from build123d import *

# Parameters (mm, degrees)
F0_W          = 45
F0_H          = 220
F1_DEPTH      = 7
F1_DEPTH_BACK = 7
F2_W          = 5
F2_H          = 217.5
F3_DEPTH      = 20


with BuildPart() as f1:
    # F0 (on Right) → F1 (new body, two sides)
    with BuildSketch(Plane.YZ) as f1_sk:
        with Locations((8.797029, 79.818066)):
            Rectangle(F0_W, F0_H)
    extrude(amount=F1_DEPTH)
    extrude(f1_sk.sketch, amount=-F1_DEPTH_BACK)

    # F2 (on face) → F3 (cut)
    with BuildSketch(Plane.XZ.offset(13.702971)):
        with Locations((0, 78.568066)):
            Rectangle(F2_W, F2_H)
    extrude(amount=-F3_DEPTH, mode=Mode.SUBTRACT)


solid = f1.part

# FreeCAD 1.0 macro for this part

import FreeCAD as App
import Part
import Sketcher
Q = App.Units.Quantity

doc = App.newDocument("Part")
body = doc.addObject("PartDesign::Body", "Body")

sketch1 = body.newObject("Sketcher::SketchObject", "Sketch")
sketch1.AttachmentSupport = (doc.getObject("YZ_Plane"), [""])
sketch1.MapMode = "FlatFace"
sketch1.addGeometry(Part.LineSegment(App.Vector(-14, 190, 0), App.Vector(-14, -30, 0)), False)
sketch1.addGeometry(Part.LineSegment(App.Vector(-14, -30, 0), App.Vector(31, -30, 0)), False)
sketch1.addGeometry(Part.LineSegment(App.Vector(31, -30, 0), App.Vector(31, 190, 0)), False)
sketch1.addGeometry(Part.LineSegment(App.Vector(31, 190, 0), App.Vector(-14, 190, 0)), False)
sketch1.addConstraint(Sketcher.Constraint("Coincident", 0, 2, 1, 1))
sketch1.addConstraint(Sketcher.Constraint("Coincident", 1, 2, 2, 1))
sketch1.addConstraint(Sketcher.Constraint("Coincident", 2, 2, 3, 1))
sketch1.addConstraint(Sketcher.Constraint("Coincident", 3, 2, 0, 1))
sketch1.addConstraint(Sketcher.Constraint("Vertical", 0))
sketch1.addConstraint(Sketcher.Constraint("Horizontal", 1))
sketch1.addConstraint(Sketcher.Constraint("Vertical", 2))
sketch1.addConstraint(Sketcher.Constraint("Horizontal", 3))
sketch1.addConstraint(Sketcher.Constraint("DistanceX", 1, 1, 1, 2, Q("45 mm")))
sketch1.addConstraint(Sketcher.Constraint("DistanceY", 0, 2, 0, 1, Q("220 mm")))
sketch1.addConstraint(Sketcher.Constraint("DistanceX", 0, 2, -1, 1, Q("13.702971 mm")))
sketch1.addConstraint(Sketcher.Constraint("DistanceY", 0, 2, -1, 1, Q("30.181934 mm")))
pad1 = body.newObject("PartDesign::Pad", "Pad")
pad1.Profile = sketch1
pad1.Type = "TwoLengths"
pad1.Length = 7
pad1.Length2 = 7

sketch2 = body.newObject("Sketcher::SketchObject", "Sketch001")
sketch2.AttachmentSupport = (doc.getObject("XZ_Plane"), [""])
sketch2.MapMode = "FlatFace"
sketch2.AttachmentOffset = App.Placement(App.Vector(0, 0, 13.702971), App.Rotation())
sketch2.addGeometry(Part.LineSegment(App.Vector(-2, 187, 0), App.Vector(-2, -30, 0)), False)
sketch2.addGeometry(Part.LineSegment(App.Vector(-2, -30, 0), App.Vector(2, -30, 0)), False)
sketch2.addGeometry(Part.LineSegment(App.Vector(2, -30, 0), App.Vector(2, 187, 0)), False)
sketch2.addGeometry(Part.LineSegment(App.Vector(2, 187, 0), App.Vector(-2, 187, 0)), False)
sketch2.addConstraint(Sketcher.Constraint("Coincident", 0, 2, 1, 1))
sketch2.addConstraint(Sketcher.Constraint("Coincident", 1, 2, 2, 1))
sketch2.addConstraint(Sketcher.Constraint("Coincident", 2, 2, 3, 1))
sketch2.addConstraint(Sketcher.Constraint("Coincident", 3, 2, 0, 1))
sketch2.addConstraint(Sketcher.Constraint("Vertical", 0))
sketch2.addConstraint(Sketcher.Constraint("Horizontal", 1))
sketch2.addConstraint(Sketcher.Constraint("Vertical", 2))
sketch2.addConstraint(Sketcher.Constraint("Horizontal", 3))
sketch2.addConstraint(Sketcher.Constraint("DistanceX", 1, 1, 1, 2, Q("5 mm")))
sketch2.addConstraint(Sketcher.Constraint("DistanceY", 0, 2, 0, 1, Q("217.5 mm")))
sketch2.addConstraint(Sketcher.Constraint("DistanceX", 0, 2, -1, 1, Q("2.5 mm")))
sketch2.addConstraint(Sketcher.Constraint("DistanceY", 0, 2, -1, 1, Q("30.181934 mm")))
pocket1 = body.newObject("PartDesign::Pocket", "Pocket")
pocket1.Profile = sketch2
pocket1.Length = 20

doc.recompute()
